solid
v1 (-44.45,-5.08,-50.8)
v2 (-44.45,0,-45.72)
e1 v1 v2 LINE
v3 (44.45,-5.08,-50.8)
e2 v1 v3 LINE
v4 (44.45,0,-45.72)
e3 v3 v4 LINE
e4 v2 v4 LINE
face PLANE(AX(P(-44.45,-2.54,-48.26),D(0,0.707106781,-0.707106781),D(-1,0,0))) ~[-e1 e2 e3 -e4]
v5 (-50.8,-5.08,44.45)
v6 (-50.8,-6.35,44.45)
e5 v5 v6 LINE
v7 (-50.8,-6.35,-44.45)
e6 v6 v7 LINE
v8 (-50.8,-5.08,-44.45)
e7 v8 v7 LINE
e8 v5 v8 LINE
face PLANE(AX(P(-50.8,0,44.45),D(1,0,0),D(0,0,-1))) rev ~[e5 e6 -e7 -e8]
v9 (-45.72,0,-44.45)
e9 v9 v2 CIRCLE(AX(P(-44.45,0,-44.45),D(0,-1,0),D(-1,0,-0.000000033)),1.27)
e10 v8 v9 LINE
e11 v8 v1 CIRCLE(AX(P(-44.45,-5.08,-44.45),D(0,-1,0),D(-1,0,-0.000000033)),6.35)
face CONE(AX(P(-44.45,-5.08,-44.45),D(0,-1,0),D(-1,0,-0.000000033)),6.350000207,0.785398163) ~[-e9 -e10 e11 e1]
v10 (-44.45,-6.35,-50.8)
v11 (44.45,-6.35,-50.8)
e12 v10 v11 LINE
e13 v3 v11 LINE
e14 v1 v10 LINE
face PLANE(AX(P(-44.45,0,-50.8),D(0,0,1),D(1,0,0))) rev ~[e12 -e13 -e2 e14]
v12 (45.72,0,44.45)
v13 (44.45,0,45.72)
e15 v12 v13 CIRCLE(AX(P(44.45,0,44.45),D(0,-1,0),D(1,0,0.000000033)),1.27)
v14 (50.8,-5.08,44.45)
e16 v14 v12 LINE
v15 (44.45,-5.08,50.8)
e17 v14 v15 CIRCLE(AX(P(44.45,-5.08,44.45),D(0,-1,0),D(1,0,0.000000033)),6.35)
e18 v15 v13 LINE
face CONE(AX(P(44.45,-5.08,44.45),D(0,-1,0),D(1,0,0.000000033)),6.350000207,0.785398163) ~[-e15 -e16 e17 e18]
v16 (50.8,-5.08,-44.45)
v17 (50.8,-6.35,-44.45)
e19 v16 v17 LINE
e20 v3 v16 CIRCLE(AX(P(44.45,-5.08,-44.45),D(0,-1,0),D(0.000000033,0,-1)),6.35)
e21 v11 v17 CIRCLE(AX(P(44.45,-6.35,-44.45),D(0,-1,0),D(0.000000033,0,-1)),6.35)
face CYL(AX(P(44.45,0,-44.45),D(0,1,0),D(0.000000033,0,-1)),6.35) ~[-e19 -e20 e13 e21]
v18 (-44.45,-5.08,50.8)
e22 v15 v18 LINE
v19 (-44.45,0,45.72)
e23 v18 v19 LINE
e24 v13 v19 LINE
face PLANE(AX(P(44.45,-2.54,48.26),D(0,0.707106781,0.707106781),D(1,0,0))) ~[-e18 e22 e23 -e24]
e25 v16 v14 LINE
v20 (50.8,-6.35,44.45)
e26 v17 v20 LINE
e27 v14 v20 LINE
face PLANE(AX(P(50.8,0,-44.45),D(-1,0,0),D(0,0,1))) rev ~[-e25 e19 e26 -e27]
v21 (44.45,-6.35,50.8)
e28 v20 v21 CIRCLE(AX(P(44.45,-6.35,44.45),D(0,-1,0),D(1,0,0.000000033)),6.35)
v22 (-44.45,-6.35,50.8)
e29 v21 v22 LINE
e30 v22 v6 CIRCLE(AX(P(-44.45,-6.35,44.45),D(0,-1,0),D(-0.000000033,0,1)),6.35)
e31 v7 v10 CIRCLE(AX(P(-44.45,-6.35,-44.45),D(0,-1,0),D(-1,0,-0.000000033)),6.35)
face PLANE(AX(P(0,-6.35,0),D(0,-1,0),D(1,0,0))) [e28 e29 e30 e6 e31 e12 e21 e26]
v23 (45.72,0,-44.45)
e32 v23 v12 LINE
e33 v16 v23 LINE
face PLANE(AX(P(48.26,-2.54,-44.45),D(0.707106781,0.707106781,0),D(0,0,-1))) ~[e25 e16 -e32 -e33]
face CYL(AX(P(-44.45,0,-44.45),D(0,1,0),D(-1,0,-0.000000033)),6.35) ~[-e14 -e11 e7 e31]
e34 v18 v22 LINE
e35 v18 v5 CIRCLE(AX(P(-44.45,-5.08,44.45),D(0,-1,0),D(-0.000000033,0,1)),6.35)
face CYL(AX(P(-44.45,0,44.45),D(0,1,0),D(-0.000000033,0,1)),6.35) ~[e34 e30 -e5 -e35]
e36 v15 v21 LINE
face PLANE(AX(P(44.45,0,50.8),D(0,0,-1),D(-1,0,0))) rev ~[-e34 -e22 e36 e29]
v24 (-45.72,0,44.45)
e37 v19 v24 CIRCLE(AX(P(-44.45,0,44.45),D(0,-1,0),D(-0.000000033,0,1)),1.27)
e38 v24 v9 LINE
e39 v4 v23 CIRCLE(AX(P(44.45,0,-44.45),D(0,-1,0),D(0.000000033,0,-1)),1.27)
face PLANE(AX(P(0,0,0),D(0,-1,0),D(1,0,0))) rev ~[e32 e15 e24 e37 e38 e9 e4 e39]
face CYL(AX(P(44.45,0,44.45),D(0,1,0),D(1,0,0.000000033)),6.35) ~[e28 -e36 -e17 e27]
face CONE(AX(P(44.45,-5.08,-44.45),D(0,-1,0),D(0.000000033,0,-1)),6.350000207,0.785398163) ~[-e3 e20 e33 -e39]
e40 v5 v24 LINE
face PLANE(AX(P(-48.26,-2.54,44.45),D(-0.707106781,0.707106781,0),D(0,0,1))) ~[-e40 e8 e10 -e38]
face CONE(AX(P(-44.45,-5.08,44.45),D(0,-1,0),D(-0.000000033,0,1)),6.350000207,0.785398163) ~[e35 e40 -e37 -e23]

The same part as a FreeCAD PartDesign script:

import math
import FreeCAD as App
import Part
import Sketcher

V = App.Vector
Q = App.Units.Quantity


def edges_at(feature, points):
    """Names of the edges that pass closest to the given points."""
    edges = feature.Shape.Edges
    near = lambda p: min(range(len(edges)), key=lambda i: edges[i].distToShape(Part.Vertex(*p))[0])
    return sorted({f"Edge{near(p) + 1}" for p in points})

doc = App.newDocument("Part")
body = doc.addObject("PartDesign::Body", "Body")

# Sketch on XZ plane
sketch1 = body.newObject("Sketcher::SketchObject", "Sketch")
sketch1.AttachmentSupport = (doc.getObject("XZ_Plane"), [""])
sketch1.MapMode = "FlatFace"
sketch1.addGeometry(Part.ArcOfCircle(Part.Circle(V(44.45, 44.45, 0), V(0, 0, 1), 6.35), math.radians(0.000002), math.radians(89.999998)), False)
sketch1.addGeometry(Part.LineSegment(V(44.45, 50.8, 0), V(-44.45, 50.8, 0)), False)
sketch1.addGeometry(Part.ArcOfCircle(Part.Circle(V(-44.45, 44.45, 0), V(0, 0, 1), 6.35), math.radians(90.000002), math.radians(179.999998)), False)
sketch1.addGeometry(Part.LineSegment(V(-50.8, 44.45, 0), V(-50.8, -44.45, 0)), False)
sketch1.addGeometry(Part.ArcOfCircle(Part.Circle(V(-44.45, -44.45, 0), V(0, 0, 1), 6.35), math.radians(-179.999998), math.radians(-90.000002)), False)
sketch1.addGeometry(Part.LineSegment(V(-44.45, -50.8, 0), V(44.45, -50.8, 0)), False)
sketch1.addGeometry(Part.ArcOfCircle(Part.Circle(V(44.45, -44.45, 0), V(0, 0, 1), 6.35), math.radians(-89.999998), math.radians(-0.000002)), False)
sketch1.addGeometry(Part.LineSegment(V(50.8, -44.45, 0), V(50.8, 44.45, 0)), False)
sketch1.addConstraint(Sketcher.Constraint("Tangent", 0, 2, 1, 1))
sketch1.addConstraint(Sketcher.Constraint("Tangent", 1, 2, 2, 1))
sketch1.addConstraint(Sketcher.Constraint("Tangent", 2, 2, 3, 1))
sketch1.addConstraint(Sketcher.Constraint("Tangent", 3, 2, 4, 1))
sketch1.addConstraint(Sketcher.Constraint("Tangent", 4, 2, 5, 1))
sketch1.addConstraint(Sketcher.Constraint("Tangent", 5, 2, 6, 1))
sketch1.addConstraint(Sketcher.Constraint("Tangent", 6, 2, 7, 1))
sketch1.addConstraint(Sketcher.Constraint("Tangent", 7, 2, 0, 1))
sketch1.addConstraint(Sketcher.Constraint("Horizontal", 1))
sketch1.addConstraint(Sketcher.Constraint("Vertical", 3))
sketch1.addConstraint(Sketcher.Constraint("Horizontal", 5))
sketch1.addConstraint(Sketcher.Constraint("Vertical", 7))
sketch1.addConstraint(Sketcher.Constraint("Equal", 0, 2))
sketch1.addConstraint(Sketcher.Constraint("Equal", 2, 4))
sketch1.addConstraint(Sketcher.Constraint("Equal", 4, 6))
sketch1.addConstraint(Sketcher.Constraint("Symmetric", 0, 3, 4, 3, -1, 1))
sketch1.addConstraint(Sketcher.Constraint("Equal", 5, 3))
sketch1.addConstraint(Sketcher.Constraint("Radius", 0, Q("0.25 in")))
sketch1.addConstraint(Sketcher.Constraint("DistanceX", 1, 2, 1, 1, Q("3.5 in")))
pad1 = body.newObject("PartDesign::Pad", "Pad")
pad1.Profile = sketch1
pad1.Length = Q("0.25 in")
doc.recompute()

chamfer = body.newObject("PartDesign::Chamfer", "Chamfer")
chamfer.Base = (pad1, edges_at(pad1, [(0, 0, 50.8)]))
chamfer.Size = Q("0.2 in")

doc.recompute()
